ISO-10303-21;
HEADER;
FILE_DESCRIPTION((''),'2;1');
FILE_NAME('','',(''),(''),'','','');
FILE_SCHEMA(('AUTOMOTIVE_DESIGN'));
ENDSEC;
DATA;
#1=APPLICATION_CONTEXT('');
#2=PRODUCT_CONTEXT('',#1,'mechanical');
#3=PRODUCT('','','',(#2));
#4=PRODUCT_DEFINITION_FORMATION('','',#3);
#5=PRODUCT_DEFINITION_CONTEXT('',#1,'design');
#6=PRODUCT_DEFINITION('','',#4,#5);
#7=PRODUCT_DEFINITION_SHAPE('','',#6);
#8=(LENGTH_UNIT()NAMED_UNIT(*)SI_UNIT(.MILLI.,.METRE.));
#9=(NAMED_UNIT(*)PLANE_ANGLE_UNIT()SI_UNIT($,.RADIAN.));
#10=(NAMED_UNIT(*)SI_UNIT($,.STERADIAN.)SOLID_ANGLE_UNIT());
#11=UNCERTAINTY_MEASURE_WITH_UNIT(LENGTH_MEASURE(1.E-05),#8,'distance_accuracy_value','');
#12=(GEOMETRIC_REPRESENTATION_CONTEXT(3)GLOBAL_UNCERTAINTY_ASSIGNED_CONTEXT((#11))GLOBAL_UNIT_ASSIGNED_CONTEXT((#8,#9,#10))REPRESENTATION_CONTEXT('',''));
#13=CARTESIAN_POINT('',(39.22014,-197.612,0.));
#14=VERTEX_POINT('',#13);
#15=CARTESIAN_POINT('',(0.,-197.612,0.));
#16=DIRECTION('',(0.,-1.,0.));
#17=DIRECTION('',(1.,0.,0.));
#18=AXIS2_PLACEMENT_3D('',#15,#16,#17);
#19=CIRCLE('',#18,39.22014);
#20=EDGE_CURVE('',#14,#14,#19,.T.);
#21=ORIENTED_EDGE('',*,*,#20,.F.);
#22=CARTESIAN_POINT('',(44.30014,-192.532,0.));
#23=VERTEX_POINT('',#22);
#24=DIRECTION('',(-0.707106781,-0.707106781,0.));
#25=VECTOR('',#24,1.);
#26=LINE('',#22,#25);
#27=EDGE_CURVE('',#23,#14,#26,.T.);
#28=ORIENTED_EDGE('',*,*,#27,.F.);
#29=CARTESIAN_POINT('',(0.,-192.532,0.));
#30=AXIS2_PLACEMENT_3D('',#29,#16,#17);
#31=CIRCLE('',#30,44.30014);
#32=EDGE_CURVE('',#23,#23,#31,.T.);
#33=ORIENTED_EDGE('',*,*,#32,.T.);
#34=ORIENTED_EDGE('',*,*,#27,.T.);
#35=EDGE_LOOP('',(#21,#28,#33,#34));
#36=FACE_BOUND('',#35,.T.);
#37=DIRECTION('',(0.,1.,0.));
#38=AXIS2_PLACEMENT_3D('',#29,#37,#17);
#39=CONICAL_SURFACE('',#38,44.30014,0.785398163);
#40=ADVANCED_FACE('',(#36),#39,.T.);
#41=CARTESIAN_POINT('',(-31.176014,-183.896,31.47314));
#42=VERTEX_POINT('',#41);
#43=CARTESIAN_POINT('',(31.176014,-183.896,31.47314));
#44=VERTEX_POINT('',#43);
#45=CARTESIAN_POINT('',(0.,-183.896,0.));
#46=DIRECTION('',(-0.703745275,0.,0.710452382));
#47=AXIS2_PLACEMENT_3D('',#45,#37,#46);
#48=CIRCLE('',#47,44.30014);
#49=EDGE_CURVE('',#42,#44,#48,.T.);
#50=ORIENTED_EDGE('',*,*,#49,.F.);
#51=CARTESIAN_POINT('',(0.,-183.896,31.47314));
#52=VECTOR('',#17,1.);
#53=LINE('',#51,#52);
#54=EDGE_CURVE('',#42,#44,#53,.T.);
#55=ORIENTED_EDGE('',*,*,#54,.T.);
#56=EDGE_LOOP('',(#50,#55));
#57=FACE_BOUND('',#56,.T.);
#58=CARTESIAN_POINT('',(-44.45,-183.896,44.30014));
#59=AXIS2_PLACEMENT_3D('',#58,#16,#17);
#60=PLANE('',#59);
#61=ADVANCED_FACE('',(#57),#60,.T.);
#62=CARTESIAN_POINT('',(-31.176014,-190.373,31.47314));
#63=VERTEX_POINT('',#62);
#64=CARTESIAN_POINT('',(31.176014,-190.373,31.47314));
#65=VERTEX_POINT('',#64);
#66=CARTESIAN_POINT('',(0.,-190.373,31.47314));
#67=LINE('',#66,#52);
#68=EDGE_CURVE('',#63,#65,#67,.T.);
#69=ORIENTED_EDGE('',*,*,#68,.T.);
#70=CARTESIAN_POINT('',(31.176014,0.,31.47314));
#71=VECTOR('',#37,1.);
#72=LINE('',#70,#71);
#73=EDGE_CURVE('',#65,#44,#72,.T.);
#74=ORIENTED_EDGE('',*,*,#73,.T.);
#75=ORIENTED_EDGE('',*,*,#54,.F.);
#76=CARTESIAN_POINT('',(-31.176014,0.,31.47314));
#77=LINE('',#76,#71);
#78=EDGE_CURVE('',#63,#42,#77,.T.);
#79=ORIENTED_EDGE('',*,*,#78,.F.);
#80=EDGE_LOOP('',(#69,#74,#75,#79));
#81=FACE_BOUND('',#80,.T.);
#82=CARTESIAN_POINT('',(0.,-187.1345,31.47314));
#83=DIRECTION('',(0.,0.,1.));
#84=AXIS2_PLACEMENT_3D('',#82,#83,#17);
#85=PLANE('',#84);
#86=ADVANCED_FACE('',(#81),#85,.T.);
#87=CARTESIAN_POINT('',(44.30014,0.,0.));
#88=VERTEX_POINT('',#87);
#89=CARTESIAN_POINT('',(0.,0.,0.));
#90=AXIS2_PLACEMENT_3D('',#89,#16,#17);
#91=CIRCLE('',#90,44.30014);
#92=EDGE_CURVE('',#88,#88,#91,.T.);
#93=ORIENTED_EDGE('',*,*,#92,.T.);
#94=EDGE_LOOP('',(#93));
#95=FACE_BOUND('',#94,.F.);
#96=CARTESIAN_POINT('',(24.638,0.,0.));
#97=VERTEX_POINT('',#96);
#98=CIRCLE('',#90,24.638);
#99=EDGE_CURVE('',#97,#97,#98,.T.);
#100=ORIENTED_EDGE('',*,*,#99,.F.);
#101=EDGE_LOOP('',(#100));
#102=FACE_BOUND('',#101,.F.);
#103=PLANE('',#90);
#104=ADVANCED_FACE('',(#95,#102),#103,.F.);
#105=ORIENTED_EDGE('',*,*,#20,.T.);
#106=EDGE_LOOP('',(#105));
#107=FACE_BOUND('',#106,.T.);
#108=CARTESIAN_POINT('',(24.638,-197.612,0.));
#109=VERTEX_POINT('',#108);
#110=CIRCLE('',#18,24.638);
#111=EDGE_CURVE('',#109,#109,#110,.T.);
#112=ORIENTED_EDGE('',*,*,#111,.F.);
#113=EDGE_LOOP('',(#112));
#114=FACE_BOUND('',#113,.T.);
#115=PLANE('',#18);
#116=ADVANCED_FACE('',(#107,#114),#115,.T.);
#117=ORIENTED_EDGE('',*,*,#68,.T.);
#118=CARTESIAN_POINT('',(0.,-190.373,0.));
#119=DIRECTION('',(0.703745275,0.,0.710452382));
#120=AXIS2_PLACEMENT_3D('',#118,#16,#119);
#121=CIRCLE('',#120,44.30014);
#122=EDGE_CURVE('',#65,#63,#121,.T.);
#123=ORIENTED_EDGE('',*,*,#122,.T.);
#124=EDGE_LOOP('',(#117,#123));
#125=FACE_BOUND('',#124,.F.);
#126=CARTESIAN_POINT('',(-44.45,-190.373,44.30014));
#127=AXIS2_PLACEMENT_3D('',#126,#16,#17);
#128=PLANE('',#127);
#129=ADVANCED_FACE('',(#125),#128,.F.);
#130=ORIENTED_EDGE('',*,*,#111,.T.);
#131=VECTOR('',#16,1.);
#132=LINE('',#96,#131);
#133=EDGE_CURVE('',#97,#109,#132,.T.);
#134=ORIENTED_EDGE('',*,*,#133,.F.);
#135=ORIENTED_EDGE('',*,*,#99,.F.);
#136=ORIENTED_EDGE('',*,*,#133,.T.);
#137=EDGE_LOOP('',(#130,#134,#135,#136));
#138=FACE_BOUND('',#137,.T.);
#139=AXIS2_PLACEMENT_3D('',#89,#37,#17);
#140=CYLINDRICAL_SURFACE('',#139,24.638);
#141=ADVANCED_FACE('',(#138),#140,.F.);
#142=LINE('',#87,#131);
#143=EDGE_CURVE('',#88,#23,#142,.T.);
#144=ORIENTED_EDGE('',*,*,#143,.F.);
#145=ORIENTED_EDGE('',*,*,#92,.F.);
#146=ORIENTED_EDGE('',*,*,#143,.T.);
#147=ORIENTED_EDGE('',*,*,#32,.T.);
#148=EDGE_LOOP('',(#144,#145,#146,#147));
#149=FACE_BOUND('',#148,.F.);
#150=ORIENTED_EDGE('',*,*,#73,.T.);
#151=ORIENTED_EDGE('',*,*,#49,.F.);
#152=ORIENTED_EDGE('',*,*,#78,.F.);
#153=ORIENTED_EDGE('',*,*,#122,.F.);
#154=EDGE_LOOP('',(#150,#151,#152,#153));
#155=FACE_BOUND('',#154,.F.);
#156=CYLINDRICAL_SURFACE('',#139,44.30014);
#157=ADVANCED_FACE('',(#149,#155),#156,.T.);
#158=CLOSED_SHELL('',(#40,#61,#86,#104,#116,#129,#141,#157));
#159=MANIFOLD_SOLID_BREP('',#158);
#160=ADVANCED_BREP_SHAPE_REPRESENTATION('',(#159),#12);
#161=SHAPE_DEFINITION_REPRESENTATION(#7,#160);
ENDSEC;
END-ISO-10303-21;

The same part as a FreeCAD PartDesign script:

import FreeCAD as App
import Part
import Sketcher
from FreeCAD import Vector
Q = App.Units.Quantity


def edges_at(feature, points):
    """Names of the edges that pass closest to the given points."""
    edges = feature.Shape.Edges
    near = lambda p: min(range(len(edges)), key=lambda i: edges[i].distToShape(Part.Vertex(*p))[0])
    return sorted({f"Edge{near(p) + 1}" for p in points})


def add_polygon(sketch, points):
    """Adds a closed chain of lines whose ends are joined by coincident constraints."""
    first, n = sketch.GeometryCount, len(points)
    for a, b in zip(points, points[1:] + points[:1]):
        sketch.addGeometry(Part.LineSegment(App.Vector(*a, 0), App.Vector(*b, 0)), False)
    for i in range(n):
        sketch.addConstraint(Sketcher.Constraint("Coincident", first + i, 2, first + (i + 1) % n, 1))

doc = App.newDocument("Part")
params = doc.addObject("Spreadsheet::Sheet", "Params")
for row, (alias, value) in enumerate([
    ("sketch1_diameter", "1.94 in"),
    ("pad1_length", "7.78 in"),
    ("sketch2_width", "3.5 in"),
    ("sketch2_height", "0.255 in"),
    ("pocket1_length", "0.505 in"),
    ("chamfer_size", "0.2 in"),
], start=1):
    params.set(f"A{row}", alias)
    params.set(f"B{row}", "=" + value)
    params.setAlias(f"B{row}", alias)

body = doc.addObject("PartDesign::Body", "Body")

# Sketch on XZ plane
sketch1 = body.newObject("Sketcher::SketchObject", "Sketch")
sketch1.AttachmentSupport = (doc.getObject("XZ_Plane"), [""])
sketch1.MapMode = "FlatFace"
sketch1.addGeometry([
    Part.Circle(Vector(0, 0, 0), Vector(0, 0, 1), 44),
    Part.Circle(Vector(0, 0, 0), Vector(0, 0, 1), 25),
], False)
sketch1.addConstraint([
    Sketcher.Constraint("Coincident", 0, 3, -1, 1),
    Sketcher.Constraint("Coincident", 1, 3, -1, 1),
    Sketcher.Constraint("Diameter", 1, Q("1.94 in")),
    Sketcher.Constraint("Diameter", 0, Q("3.4882 in")),
])
sketch1.setExpression("Constraints[2]", "Params.sketch1_diameter")
pad1 = body.newObject("PartDesign::Pad", "Pad")
pad1.Profile = sketch1
pad1.setExpression("Length", "Params.pad1_length")

# Sketch on XY plane
sketch2 = body.newObject("Sketcher::SketchObject", "Sketch001")
sketch2.AttachmentSupport = (doc.getObject("XY_Plane"), [""])
sketch2.MapMode = "FlatFace"
sketch2.AttachmentOffset = App.Placement(Vector(0, 0, 1.7441 * 25.4), App.Rotation())
add_polygon(sketch2, [(-44, -184), (-44, -190), (44, -190), (44, -184)])  # lines 0-3
sketch2.addConstraint([
    Sketcher.Constraint("Vertical", 0),
    Sketcher.Constraint("Horizontal", 1),
    Sketcher.Constraint("Vertical", 2),
    Sketcher.Constraint("Horizontal", 3),
    Sketcher.Constraint("DistanceX", 1, 1, 1, 2, Q("3.5 in")),
    Sketcher.Constraint("DistanceY", 0, 2, 0, 1, Q("0.255 in")),
    Sketcher.Constraint("DistanceX", 0, 2, -1, 1, Q("1.75 in")),
    Sketcher.Constraint("DistanceY", 2, 2, -1, 1, Q("7.24 in")),
])
sketch2.setExpression("Constraints[8]", "Params.sketch2_width")
sketch2.setExpression("Constraints[9]", "Params.sketch2_height")
pocket1 = body.newObject("PartDesign::Pocket", "Pocket")
pocket1.Profile = sketch2
pocket1.setExpression("Length", "Params.pocket1_length")
doc.recompute()

chamfer = body.newObject("PartDesign::Chamfer", "Chamfer")
chamfer.Base = (pocket1, edges_at(pocket1, [(-44.3, -197.612, 0)]))
chamfer.setExpression("Size", "Params.chamfer_size")

doc.recompute()
